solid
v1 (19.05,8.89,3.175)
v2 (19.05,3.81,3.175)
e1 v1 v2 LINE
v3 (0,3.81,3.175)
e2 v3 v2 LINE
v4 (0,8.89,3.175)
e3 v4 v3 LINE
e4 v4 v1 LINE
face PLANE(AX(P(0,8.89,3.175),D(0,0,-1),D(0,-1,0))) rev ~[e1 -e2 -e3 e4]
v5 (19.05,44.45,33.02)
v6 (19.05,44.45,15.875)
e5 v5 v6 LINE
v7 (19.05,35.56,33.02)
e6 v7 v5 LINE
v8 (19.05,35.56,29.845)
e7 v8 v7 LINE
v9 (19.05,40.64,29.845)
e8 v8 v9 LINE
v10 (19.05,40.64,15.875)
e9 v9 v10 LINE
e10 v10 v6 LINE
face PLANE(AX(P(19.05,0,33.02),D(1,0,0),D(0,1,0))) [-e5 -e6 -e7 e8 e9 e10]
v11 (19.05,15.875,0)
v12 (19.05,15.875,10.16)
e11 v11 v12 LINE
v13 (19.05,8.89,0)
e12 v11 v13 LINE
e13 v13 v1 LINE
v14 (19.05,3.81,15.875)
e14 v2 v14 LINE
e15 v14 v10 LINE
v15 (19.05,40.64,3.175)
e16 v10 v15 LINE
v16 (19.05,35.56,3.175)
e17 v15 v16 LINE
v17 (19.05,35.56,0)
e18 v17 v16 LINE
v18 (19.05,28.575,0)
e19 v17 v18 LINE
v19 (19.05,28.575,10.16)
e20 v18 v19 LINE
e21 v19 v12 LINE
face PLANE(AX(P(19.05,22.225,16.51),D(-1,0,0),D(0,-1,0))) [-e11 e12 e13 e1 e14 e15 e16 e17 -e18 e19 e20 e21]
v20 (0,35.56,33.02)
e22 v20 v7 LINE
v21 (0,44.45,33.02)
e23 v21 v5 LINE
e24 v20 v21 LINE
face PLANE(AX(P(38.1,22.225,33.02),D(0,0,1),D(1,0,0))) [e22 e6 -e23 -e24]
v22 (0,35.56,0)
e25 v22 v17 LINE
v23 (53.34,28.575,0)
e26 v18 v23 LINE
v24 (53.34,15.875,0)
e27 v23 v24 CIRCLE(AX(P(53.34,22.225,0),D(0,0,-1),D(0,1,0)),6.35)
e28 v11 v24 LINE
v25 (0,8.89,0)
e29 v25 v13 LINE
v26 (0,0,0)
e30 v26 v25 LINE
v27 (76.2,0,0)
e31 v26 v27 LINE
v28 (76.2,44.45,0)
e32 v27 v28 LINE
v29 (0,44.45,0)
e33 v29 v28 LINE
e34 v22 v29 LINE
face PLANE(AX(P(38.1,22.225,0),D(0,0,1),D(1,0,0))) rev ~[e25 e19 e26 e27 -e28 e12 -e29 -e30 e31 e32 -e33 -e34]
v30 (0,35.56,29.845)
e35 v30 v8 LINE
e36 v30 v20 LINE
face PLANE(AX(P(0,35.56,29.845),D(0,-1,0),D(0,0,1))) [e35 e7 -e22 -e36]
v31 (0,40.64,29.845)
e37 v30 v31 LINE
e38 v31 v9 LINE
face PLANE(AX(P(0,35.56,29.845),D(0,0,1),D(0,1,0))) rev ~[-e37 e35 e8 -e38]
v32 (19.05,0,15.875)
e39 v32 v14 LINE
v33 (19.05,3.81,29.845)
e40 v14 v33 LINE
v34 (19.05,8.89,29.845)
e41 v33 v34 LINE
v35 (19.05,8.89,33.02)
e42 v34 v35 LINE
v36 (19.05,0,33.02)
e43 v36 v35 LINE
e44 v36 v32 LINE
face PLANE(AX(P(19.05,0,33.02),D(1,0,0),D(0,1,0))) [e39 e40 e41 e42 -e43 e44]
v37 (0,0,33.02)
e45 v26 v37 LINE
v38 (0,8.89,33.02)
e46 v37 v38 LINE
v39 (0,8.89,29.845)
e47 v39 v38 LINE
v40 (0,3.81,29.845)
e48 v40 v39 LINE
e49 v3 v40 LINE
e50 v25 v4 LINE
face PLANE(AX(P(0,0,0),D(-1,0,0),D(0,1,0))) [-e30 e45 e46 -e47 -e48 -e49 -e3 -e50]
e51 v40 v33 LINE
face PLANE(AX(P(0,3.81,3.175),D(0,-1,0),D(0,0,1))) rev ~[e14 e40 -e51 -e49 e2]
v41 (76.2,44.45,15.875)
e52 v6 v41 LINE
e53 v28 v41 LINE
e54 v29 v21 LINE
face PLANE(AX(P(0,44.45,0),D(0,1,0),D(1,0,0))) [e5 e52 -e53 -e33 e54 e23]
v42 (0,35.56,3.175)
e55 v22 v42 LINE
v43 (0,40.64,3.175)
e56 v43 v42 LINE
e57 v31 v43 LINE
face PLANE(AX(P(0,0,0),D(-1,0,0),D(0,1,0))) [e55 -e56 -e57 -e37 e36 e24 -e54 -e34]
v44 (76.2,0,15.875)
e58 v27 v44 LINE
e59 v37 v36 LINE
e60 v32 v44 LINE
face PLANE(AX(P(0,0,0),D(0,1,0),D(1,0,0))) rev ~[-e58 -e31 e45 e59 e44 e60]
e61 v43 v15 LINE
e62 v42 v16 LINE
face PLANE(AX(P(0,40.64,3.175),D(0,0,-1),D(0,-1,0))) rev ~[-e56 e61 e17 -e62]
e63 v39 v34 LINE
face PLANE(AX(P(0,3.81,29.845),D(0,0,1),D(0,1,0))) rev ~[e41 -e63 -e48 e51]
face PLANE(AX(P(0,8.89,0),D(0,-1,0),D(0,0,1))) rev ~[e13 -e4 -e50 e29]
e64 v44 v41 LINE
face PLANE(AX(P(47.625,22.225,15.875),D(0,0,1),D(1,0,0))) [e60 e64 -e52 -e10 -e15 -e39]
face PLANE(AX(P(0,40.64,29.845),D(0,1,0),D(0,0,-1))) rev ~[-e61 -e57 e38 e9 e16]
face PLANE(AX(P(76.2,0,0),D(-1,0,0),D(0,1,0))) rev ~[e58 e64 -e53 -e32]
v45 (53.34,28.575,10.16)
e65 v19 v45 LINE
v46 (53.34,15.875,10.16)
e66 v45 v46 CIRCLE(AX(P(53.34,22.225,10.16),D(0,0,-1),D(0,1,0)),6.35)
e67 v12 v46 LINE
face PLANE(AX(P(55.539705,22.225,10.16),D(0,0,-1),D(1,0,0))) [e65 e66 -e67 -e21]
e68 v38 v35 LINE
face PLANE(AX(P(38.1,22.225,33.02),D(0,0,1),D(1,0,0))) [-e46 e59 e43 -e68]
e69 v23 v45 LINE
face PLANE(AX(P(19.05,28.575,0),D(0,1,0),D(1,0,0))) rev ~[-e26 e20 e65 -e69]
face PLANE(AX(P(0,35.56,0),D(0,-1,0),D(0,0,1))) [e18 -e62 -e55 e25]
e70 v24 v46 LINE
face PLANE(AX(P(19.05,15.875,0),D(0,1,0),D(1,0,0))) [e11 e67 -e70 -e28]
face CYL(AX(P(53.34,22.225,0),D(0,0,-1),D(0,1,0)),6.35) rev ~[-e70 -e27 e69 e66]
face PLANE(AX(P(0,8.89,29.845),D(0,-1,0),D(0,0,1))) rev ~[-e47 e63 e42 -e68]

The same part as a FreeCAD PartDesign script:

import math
import FreeCAD as App
import Part
import Sketcher
Q = App.Units.Quantity

doc = App.newDocument("Part")
params = doc.addObject("Spreadsheet::Sheet", "Params")
for row, (alias, value) in enumerate([
    ("sketch1_width", "3 in"),
    ("sketch1_height", "1.75 in"),
    ("pad1_length", "1.3 in"),
    ("sketch2_width", "2.25 in"),
    ("sketch2_height", "1.75 in"),
    ("pocket1_length", "0.675 in"),
    ("sketch3_width", "0.2 in"),
    ("sketch3_width2", "1.05 in"),
    ("pocket2_length", "0.75 in"),
    ("sketch4_radius", "0.25 in"),
    ("sketch4_width", "1.35 in"),
    ("pocket3_length", "0.4 in"),
], start=1):
    params.set(f"A{row}", alias)
    params.set(f"B{row}", "=" + value)
    params.setAlias(f"B{row}", alias)

body = doc.addObject("PartDesign::Body", "Body")

sketch1 = doc.addObject("Sketcher::SketchObject", "Sketch")
body.addObject(sketch1)
sketch1.AttachmentSupport = (doc.XY_Plane, [""])
sketch1.MapMode = "FlatFace"
sketch1.addGeometry([
    Part.LineSegment(App.Vector(0, 44.45, 0), App.Vector(0, 0, 0)),
    Part.LineSegment(App.Vector(0, 0, 0), App.Vector(76.2, 0, 0)),
    Part.LineSegment(App.Vector(76.2, 0, 0), App.Vector(76.2, 44.45, 0)),
    Part.LineSegment(App.Vector(76.2, 44.45, 0), App.Vector(0, 44.45, 0)),
], False)
sketch1.addConstraint([
    Sketcher.Constraint("Coincident", 0, 2, 1, 1),
    Sketcher.Constraint("Coincident", 1, 2, 2, 1),
    Sketcher.Constraint("Coincident", 2, 2, 3, 1),
    Sketcher.Constraint("Coincident", 3, 2, 0, 1),
    Sketcher.Constraint("Vertical", 0),
    Sketcher.Constraint("Horizontal", 1),
    Sketcher.Constraint("Vertical", 2),
    Sketcher.Constraint("Horizontal", 3),
    Sketcher.Constraint("Coincident", 0, 2, -1, 1),
    Sketcher.Constraint("DistanceX", 1, 1, 1, 2, Q("3 in")),
    Sketcher.Constraint("DistanceY", 0, 2, 0, 1, Q("1.75 in")),
])
sketch1.setExpression("Constraints[9]", "Params.sketch1_width")
sketch1.setExpression("Constraints[10]", "Params.sketch1_height")
pad1 = doc.addObject("PartDesign::Pad", "Pad")
body.addObject(pad1)
pad1.Profile = sketch1
pad1.setExpression("Length", "Params.pad1_length")

sketch2 = doc.addObject("Sketcher::SketchObject", "Sketch001")
body.addObject(sketch2)
sketch2.AttachmentSupport = (doc.XY_Plane, [""])
sketch2.MapMode = "FlatFace"
sketch2.AttachmentOffset = App.Placement(App.Vector(0, 0, 1.3 * 25.4), App.Rotation())
sketch2.addGeometry([
    Part.LineSegment(App.Vector(19.05, 44.45, 0), App.Vector(19.05, 0, 0)),
    Part.LineSegment(App.Vector(19.05, 0, 0), App.Vector(76.2, 0, 0)),
    Part.LineSegment(App.Vector(76.2, 0, 0), App.Vector(76.2, 44.45, 0)),
    Part.LineSegment(App.Vector(76.2, 44.45, 0), App.Vector(19.05, 44.45, 0)),
], False)
sketch2.addConstraint([
    Sketcher.Constraint("Coincident", 0, 2, 1, 1),
    Sketcher.Constraint("Coincident", 1, 2, 2, 1),
    Sketcher.Constraint("Coincident", 2, 2, 3, 1),
    Sketcher.Constraint("Coincident", 3, 2, 0, 1),
    Sketcher.Constraint("Vertical", 0),
    Sketcher.Constraint("Horizontal", 1),
    Sketcher.Constraint("Vertical", 2),
    Sketcher.Constraint("Horizontal", 3),
    Sketcher.Constraint("PointOnObject", 0, 2, -1),
    Sketcher.Constraint("DistanceX", -1, 1, 1, 2, Q("3 in")),
    Sketcher.Constraint("DistanceX", 1, 1, 1, 2, Q("2.25 in")),
    Sketcher.Constraint("DistanceY", 0, 2, 0, 1, Q("1.75 in")),
])
sketch2.setExpression("Constraints[10]", "Params.sketch2_width")
sketch2.setExpression("Constraints[11]", "Params.sketch2_height")
pocket1 = doc.addObject("PartDesign::Pocket", "Pocket")
body.addObject(pocket1)
pocket1.Profile = sketch2
pocket1.setExpression("Length", "Params.pocket1_length")

sketch3 = doc.addObject("Sketcher::SketchObject", "Sketch002")
body.addObject(sketch3)
sketch3.AttachmentSupport = (doc.YZ_Plane, [""])
sketch3.MapMode = "FlatFace"
sketch3.addGeometry([
    Part.LineSegment(App.Vector(40.64, 29.845, 0), App.Vector(40.64, 3.175, 0)),
    Part.LineSegment(App.Vector(40.64, 3.175, 0), App.Vector(35.56, 3.175, 0)),
    Part.LineSegment(App.Vector(35.56, 3.175, 0), App.Vector(35.56, 0, 0)),
    Part.LineSegment(App.Vector(35.56, 0, 0), App.Vector(8.89, 0, 0)),
    Part.LineSegment(App.Vector(8.89, 0, 0), App.Vector(8.89, 3.175, 0)),
    Part.LineSegment(App.Vector(8.89, 3.175, 0), App.Vector(3.81, 3.175, 0)),
    Part.LineSegment(App.Vector(3.81, 3.175, 0), App.Vector(3.81, 29.845, 0)),
    Part.LineSegment(App.Vector(3.81, 29.845, 0), App.Vector(8.89, 29.845, 0)),
    Part.LineSegment(App.Vector(8.89, 29.845, 0), App.Vector(8.89, 33.02, 0)),
    Part.LineSegment(App.Vector(8.89, 33.02, 0), App.Vector(35.56, 33.02, 0)),
    Part.LineSegment(App.Vector(35.56, 33.02, 0), App.Vector(35.56, 29.845, 0)),
    Part.LineSegment(App.Vector(35.56, 29.845, 0), App.Vector(40.64, 29.845, 0)),
], False)
sketch3.addConstraint([
    Sketcher.Constraint("Coincident", 0, 2, 1, 1),
    Sketcher.Constraint("Coincident", 1, 2, 2, 1),
    Sketcher.Constraint("Coincident", 2, 2, 3, 1),
    Sketcher.Constraint("Coincident", 3, 2, 4, 1),
    Sketcher.Constraint("Coincident", 4, 2, 5, 1),
    Sketcher.Constraint("Coincident", 5, 2, 6, 1),
    Sketcher.Constraint("Coincident", 6, 2, 7, 1),
    Sketcher.Constraint("Coincident", 7, 2, 8, 1),
    Sketcher.Constraint("Coincident", 8, 2, 9, 1),
    Sketcher.Constraint("Coincident", 9, 2, 10, 1),
    Sketcher.Constraint("Coincident", 10, 2, 11, 1),
    Sketcher.Constraint("Coincident", 11, 2, 0, 1),
    Sketcher.Constraint("Vertical", 0),
    Sketcher.Constraint("Horizontal", 1),
    Sketcher.Constraint("Vertical", 2),
    Sketcher.Constraint("Horizontal", 3),
    Sketcher.Constraint("Vertical", 4),
    Sketcher.Constraint("Horizontal", 5),
    Sketcher.Constraint("Vertical", 6),
    Sketcher.Constraint("Horizontal", 7),
    Sketcher.Constraint("Vertical", 8),
    Sketcher.Constraint("Horizontal", 9),
    Sketcher.Constraint("Vertical", 10),
    Sketcher.Constraint("Horizontal", 11),
    Sketcher.Constraint("PointOnObject", 2, 2, -1),
    Sketcher.Constraint("Horizontal", 1, 2, 4, 2),
    Sketcher.Constraint("Horizontal", 7, 2, 10, 2),
    Sketcher.Constraint("Vertical", 4, 2, 7, 2),
    Sketcher.Constraint("Vertical", 2, 2, 9, 2),
    Sketcher.Constraint("Equal", 1, 5),
    Sketcher.Constraint("Equal", 9, 0),
    Sketcher.Constraint("Equal", 4, 8),
    Sketcher.Constraint("DistanceX", 1, 2, 1, 1, Q("0.2 in")),
    Sketcher.Constraint("DistanceX", 3, 2, 3, 1, Q("1.05 in")),
    Sketcher.Constraint("DistanceX", -1, 1, 0, 2, Q("1.6 in")),
    Sketcher.Constraint("DistanceY", -1, 1, 8, 2, Q("1.3 in")),
])
sketch3.setExpression("Constraints[32]", "Params.sketch3_width")
sketch3.setExpression("Constraints[33]", "Params.sketch3_width2")
pocket2 = doc.addObject("PartDesign::Pocket", "Pocket001")
body.addObject(pocket2)
pocket2.Profile = sketch3
pocket2.setExpression("Length", "Params.pocket2_length")
pocket2.Reversed = True

sketch4 = doc.addObject("Sketcher::SketchObject", "Sketch003")
body.addObject(sketch4)
sketch4.AttachmentSupport = (doc.XY_Plane, [""])
sketch4.MapMode = "FlatFace"
sketch4.addGeometry([
    Part.ArcOfCircle(Part.Circle(App.Vector(53.34, 22.225, 0), App.Vector(0, 0, 1), 6.35), math.radians(-90), math.radians(90)),
    Part.LineSegment(App.Vector(53.34, 15.875, 0), App.Vector(19.05, 15.875, 0)),
    Part.LineSegment(App.Vector(19.05, 15.875, 0), App.Vector(19.05, 28.575, 0)),
    Part.LineSegment(App.Vector(19.05, 28.575, 0), App.Vector(53.34, 28.575, 0)),
], False)
sketch4.addConstraint([
    Sketcher.Constraint("Tangent", 0, 1, 1, 1),
    Sketcher.Constraint("Coincident", 1, 2, 2, 1),
    Sketcher.Constraint("Coincident", 2, 2, 3, 1),
    Sketcher.Constraint("Tangent", 3, 2, 0, 2),
    Sketcher.Constraint("Horizontal", 1),
    Sketcher.Constraint("Vertical", 2),
    Sketcher.Constraint("Horizontal", 3),
    Sketcher.Constraint("Radius", 0, Q("0.25 in")),
    Sketcher.Constraint("DistanceX", 1, 2, 1, 1, Q("1.35 in")),
    Sketcher.Constraint("DistanceX", -1, 1, 0, 3, Q("2.1 in")),
    Sketcher.Constraint("DistanceY", -1, 1, 0, 3, Q("0.875 in")),
])
sketch4.setExpression("Constraints[7]", "Params.sketch4_radius")
sketch4.setExpression("Constraints[8]", "Params.sketch4_width")
pocket3 = doc.addObject("PartDesign::Pocket", "Pocket002")
body.addObject(pocket3)
pocket3.Profile = sketch4
pocket3.setExpression("Length", "Params.pocket3_length")
pocket3.Reversed = True

doc.recompute()
